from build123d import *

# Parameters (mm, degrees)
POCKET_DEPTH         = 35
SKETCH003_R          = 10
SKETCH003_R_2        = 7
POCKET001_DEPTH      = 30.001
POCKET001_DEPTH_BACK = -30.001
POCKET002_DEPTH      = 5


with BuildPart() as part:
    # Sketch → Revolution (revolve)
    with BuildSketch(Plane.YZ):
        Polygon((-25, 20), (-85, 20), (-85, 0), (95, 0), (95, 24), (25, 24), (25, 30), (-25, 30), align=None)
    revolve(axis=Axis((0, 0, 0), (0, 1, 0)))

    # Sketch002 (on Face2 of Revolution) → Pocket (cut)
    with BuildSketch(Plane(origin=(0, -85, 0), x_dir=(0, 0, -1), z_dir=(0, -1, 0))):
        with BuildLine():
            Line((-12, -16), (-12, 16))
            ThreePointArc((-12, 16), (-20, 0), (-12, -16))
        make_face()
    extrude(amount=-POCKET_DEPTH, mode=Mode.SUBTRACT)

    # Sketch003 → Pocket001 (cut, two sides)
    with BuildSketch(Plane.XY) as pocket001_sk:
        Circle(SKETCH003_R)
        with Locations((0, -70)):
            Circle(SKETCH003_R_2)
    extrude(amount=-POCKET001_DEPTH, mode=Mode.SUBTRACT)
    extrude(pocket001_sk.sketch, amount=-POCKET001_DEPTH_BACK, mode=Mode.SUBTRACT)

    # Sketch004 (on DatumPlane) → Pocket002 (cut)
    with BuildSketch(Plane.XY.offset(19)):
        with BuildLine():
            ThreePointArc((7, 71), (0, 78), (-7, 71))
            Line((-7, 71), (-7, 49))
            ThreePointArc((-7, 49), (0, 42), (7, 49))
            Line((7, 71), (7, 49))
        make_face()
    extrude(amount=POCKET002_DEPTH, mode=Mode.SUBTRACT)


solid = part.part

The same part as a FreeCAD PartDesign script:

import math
import FreeCAD as App
import Part
import Sketcher
from FreeCAD import Vector

doc = App.newDocument("Part")
body = doc.addObject("PartDesign::Body", "Body")

# Sketch on YZ plane
sketch1 = body.newObject("Sketcher::SketchObject", "Sketch")
sketch1.AttachmentSupport = (doc.getObject("YZ_Plane"), [""])
sketch1.MapMode = "FlatFace"
sketch1.addGeometry(Part.LineSegment(Vector(-25, 20, 0), Vector(-85, 20, 0)), False)
sketch1.addGeometry(Part.LineSegment(Vector(-85, 20, 0), Vector(-85, 0, 0)), False)
sketch1.addGeometry(Part.LineSegment(Vector(-85, 0, 0), Vector(95, 0, 0)), False)
sketch1.addGeometry(Part.LineSegment(Vector(95, 0, 0), Vector(95, 24, 0)), False)
sketch1.addGeometry(Part.LineSegment(Vector(95, 24, 0), Vector(25, 24, 0)), False)
sketch1.addGeometry(Part.LineSegment(Vector(25, 24, 0), Vector(25, 30, 0)), False)
sketch1.addGeometry(Part.LineSegment(Vector(25, 30, 0), Vector(-25, 30, 0)), False)
sketch1.addGeometry(Part.LineSegment(Vector(-25, 30, 0), Vector(-25, 20, 0)), False)
sketch1.addConstraint(Sketcher.Constraint("Coincident", 0, 2, 1, 1))
sketch1.addConstraint(Sketcher.Constraint("Coincident", 1, 2, 2, 1))
sketch1.addConstraint(Sketcher.Constraint("Coincident", 2, 2, 3, 1))
sketch1.addConstraint(Sketcher.Constraint("Coincident", 3, 2, 4, 1))
sketch1.addConstraint(Sketcher.Constraint("Coincident", 4, 2, 5, 1))
sketch1.addConstraint(Sketcher.Constraint("Coincident", 5, 2, 6, 1))
sketch1.addConstraint(Sketcher.Constraint("Coincident", 6, 2, 7, 1))
sketch1.addConstraint(Sketcher.Constraint("Coincident", 7, 2, 0, 1))
sketch1.addConstraint(Sketcher.Constraint("Horizontal", 0))
sketch1.addConstraint(Sketcher.Constraint("Vertical", 1))
sketch1.addConstraint(Sketcher.Constraint("Horizontal", 2))
sketch1.addConstraint(Sketcher.Constraint("Vertical", 3))
sketch1.addConstraint(Sketcher.Constraint("Horizontal", 4))
sketch1.addConstraint(Sketcher.Constraint("Vertical", 5))
sketch1.addConstraint(Sketcher.Constraint("Horizontal", 6))
sketch1.addConstraint(Sketcher.Constraint("Vertical", 7))
sketch1.addConstraint(Sketcher.Constraint("PointOnObject", 1, 2, -1))
sketch1.addConstraint(Sketcher.Constraint("DistanceX", 0, 2, 0, 1, 60.0))
sketch1.addConstraint(Sketcher.Constraint("DistanceX", 2, 1, 2, 2, 180.0))
sketch1.addConstraint(Sketcher.Constraint("DistanceX", 4, 2, 4, 1, 70.0))
sketch1.addConstraint(Sketcher.Constraint("DistanceY", 1, 2, 1, 1, 20.0))
sketch1.addConstraint(Sketcher.Constraint("DistanceY", 3, 1, 3, 2, 24.0))
sketch1.addConstraint(Sketcher.Constraint("DistanceY", 5, 1, 5, 2, 6.0))
sketch1.addConstraint(Sketcher.Constraint("DistanceX", 0, 2, -1, 1, 85.0))
revolution = body.newObject("PartDesign::Revolution", "Revolution")
revolution.Profile = sketch1
revolution.ReferenceAxis = (sketch1, ["H_Axis"])
revolution.Angle = 360

# Sketch on XZ plane
sketch2 = body.newObject("Sketcher::SketchObject", "Sketch001")
sketch2.AttachmentSupport = (doc.getObject("XZ_Plane"), [""])
sketch2.MapMode = "FlatFace"
sketch2.AttachmentOffset = App.Placement(Vector(0, 0, 85), App.Rotation())
sketch2.addGeometry(Part.LineSegment(Vector(-16, 12, 0), Vector(16, 12, 0)), False)
sketch2.addGeometry(Part.ArcOfCircle(Part.Circle(Vector(0, 0, 0), Vector(0, 0, 1), 20), math.radians(37), math.radians(143)), False)
sketch2.addConstraint(Sketcher.Constraint("Coincident", 0, 1, 1, 2))
sketch2.addConstraint(Sketcher.Constraint("Coincident", 1, 1, 0, 2))
sketch2.addConstraint(Sketcher.Constraint("Horizontal", 0))
sketch2.addConstraint(Sketcher.Constraint("Coincident", 1, 3, -1, 1))
sketch2.addConstraint(Sketcher.Constraint("Radius", 1, 20.0))
sketch2.addConstraint(Sketcher.Constraint("DistanceX", 0, 1, 0, 2, 32.0))
pocket1 = body.newObject("PartDesign::Pocket", "Pocket")
pocket1.Profile = sketch2
pocket1.Length = 35

# Sketch on XY plane
sketch3 = body.newObject("Sketcher::SketchObject", "Sketch002")
sketch3.AttachmentSupport = (doc.getObject("XY_Plane"), [""])
sketch3.MapMode = "FlatFace"
sketch3.addGeometry(Part.Circle(Vector(0, 0, 0), Vector(0, 0, 1), 10), False)
sketch3.addGeometry(Part.Circle(Vector(0, -70, 0), Vector(0, 0, 1), 7), False)
sketch3.addConstraint(Sketcher.Constraint("Coincident", 0, 3, -1, 1))
sketch3.addConstraint(Sketcher.Constraint("PointOnObject", 1, 3, -2))
sketch3.addConstraint(Sketcher.Constraint("Diameter", 0, 20.0))
sketch3.addConstraint(Sketcher.Constraint("Diameter", 1, 14.0))
sketch3.addConstraint(Sketcher.Constraint("DistanceY", 1, 3, -1, 1, 70.0))
pocket2 = body.newObject("PartDesign::Pocket", "Pocket001")
pocket2.Profile = sketch3
pocket2.Type = "ThroughAll"
pocket2.Midplane = True

# Sketch on XY plane
sketch4 = body.newObject("Sketcher::SketchObject", "Sketch003")
sketch4.AttachmentSupport = (doc.getObject("XY_Plane"), [""])
sketch4.MapMode = "FlatFace"
sketch4.AttachmentOffset = App.Placement(Vector(0, 0, 19), App.Rotation())
sketch4.addGeometry(Part.ArcOfCircle(Part.Circle(Vector(0, 71, 0), Vector(0, 0, 1), 7), math.radians(0), math.radians(180)), False)
sketch4.addGeometry(Part.LineSegment(Vector(-7, 71, 0), Vector(-7, 49, 0)), False)
sketch4.addGeometry(Part.ArcOfCircle(Part.Circle(Vector(0, 49, 0), Vector(0, 0, 1), 7), math.radians(180), math.radians(360)), False)
sketch4.addGeometry(Part.LineSegment(Vector(7, 49, 0), Vector(7, 71, 0)), False)
sketch4.addConstraint(Sketcher.Constraint("Tangent", 0, 2, 1, 1))
sketch4.addConstraint(Sketcher.Constraint("Tangent", 1, 2, 2, 1))
sketch4.addConstraint(Sketcher.Constraint("Tangent", 2, 2, 3, 1))
sketch4.addConstraint(Sketcher.Constraint("Tangent", 3, 2, 0, 1))
sketch4.addConstraint(Sketcher.Constraint("Vertical", 1))
sketch4.addConstraint(Sketcher.Constraint("Vertical", 3))
sketch4.addConstraint(Sketcher.Constraint("PointOnObject", 0, 3, -2))
sketch4.addConstraint(Sketcher.Constraint("Radius", 0, 7.0))
sketch4.addConstraint(Sketcher.Constraint("DistanceY", 1, 2, 1, 1, 22.0))
sketch4.addConstraint(Sketcher.Constraint("DistanceY", -1, 1, 0, 3, 71.0))
pocket3 = body.newObject("PartDesign::Pocket", "Pocket002")
pocket3.Profile = sketch4
pocket3.Length = 5
pocket3.Reversed = True

doc.recompute()
